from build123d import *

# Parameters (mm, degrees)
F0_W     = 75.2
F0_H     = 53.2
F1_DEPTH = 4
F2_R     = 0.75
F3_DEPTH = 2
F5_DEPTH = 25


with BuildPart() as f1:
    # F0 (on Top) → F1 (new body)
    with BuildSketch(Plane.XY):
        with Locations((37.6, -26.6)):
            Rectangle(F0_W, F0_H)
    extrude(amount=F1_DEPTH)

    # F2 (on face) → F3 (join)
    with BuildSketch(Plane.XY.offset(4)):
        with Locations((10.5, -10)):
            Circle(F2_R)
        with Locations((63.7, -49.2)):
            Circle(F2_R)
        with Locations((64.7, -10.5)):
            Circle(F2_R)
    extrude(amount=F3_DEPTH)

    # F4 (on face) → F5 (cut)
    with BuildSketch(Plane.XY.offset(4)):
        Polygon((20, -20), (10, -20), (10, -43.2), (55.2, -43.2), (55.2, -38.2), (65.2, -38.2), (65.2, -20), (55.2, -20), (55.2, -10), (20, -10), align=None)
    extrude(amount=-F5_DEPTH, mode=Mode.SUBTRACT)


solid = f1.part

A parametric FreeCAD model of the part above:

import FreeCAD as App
import Part
import Sketcher
from FreeCAD import Vector

doc = App.newDocument("Part")
body = doc.addObject("PartDesign::Body", "Body")

sketch1 = doc.addObject("Sketcher::SketchObject", "Sketch")
body.addObject(sketch1)
sketch1.AttachmentSupport = (doc.XY_Plane, [""])
sketch1.MapMode = "FlatFace"
sketch1.addGeometry([
    Part.LineSegment(Vector(0, 0, 0), Vector(0, -53.2, 0)),
    Part.LineSegment(Vector(0, -53.2, 0), Vector(75.2, -53.2, 0)),
    Part.LineSegment(Vector(75.2, -53.2, 0), Vector(75.2, 0, 0)),
    Part.LineSegment(Vector(75.2, 0, 0), Vector(0, 0, 0)),
], False)
sketch1.addConstraint([
    Sketcher.Constraint("Coincident", 0, 2, 1, 1),
    Sketcher.Constraint("Coincident", 1, 2, 2, 1),
    Sketcher.Constraint("Coincident", 2, 2, 3, 1),
    Sketcher.Constraint("Coincident", 3, 2, 0, 1),
    Sketcher.Constraint("Vertical", 0),
    Sketcher.Constraint("Horizontal", 1),
    Sketcher.Constraint("Vertical", 2),
    Sketcher.Constraint("Horizontal", 3),
    Sketcher.Constraint("Coincident", 3, 2, -1, 1),
    Sketcher.Constraint("DistanceX", 1, 1, 1, 2, 75.2),
    Sketcher.Constraint("DistanceY", 0, 2, 0, 1, 53.2),
])
pad1 = doc.addObject("PartDesign::Pad", "Pad")
body.addObject(pad1)
pad1.Profile = sketch1
pad1.Length = 4

sketch2 = doc.addObject("Sketcher::SketchObject", "Sketch001")
body.addObject(sketch2)
sketch2.AttachmentSupport = (doc.XY_Plane, [""])
sketch2.MapMode = "FlatFace"
sketch2.AttachmentOffset = App.Placement(Vector(0, 0, 4), App.Rotation())
sketch2.addGeometry([
    Part.Circle(Vector(10.5, -10, 0), Vector(0, 0, 1), 0.75),
    Part.Circle(Vector(63.7, -49.2, 0), Vector(0, 0, 1), 0.75),
    Part.Circle(Vector(64.7, -10.5, 0), Vector(0, 0, 1), 0.75),
], False)
sketch2.addConstraint([
    Sketcher.Constraint("Equal", 0, 1),
    Sketcher.Constraint("Equal", 1, 2),
    Sketcher.Constraint("Diameter", 0, 1.5),
    Sketcher.Constraint("DistanceY", 0, 3, -1, 1, 10.0),
    Sketcher.Constraint("DistanceX", 1, 3, 2, 3, 1.0),
    Sketcher.Constraint("DistanceX", -1, 1, 0, 3, 10.5),
    Sketcher.Constraint("DistanceX", -1, 1, 1, 3, 63.7),
    Sketcher.Constraint("DistanceY", 1, 3, -1, 1, 49.2),
    Sketcher.Constraint("DistanceY", 2, 3, -1, 1, 10.5),
])
pad2 = doc.addObject("PartDesign::Pad", "Pad001")
body.addObject(pad2)
pad2.Profile = sketch2
pad2.Length = 2

sketch3 = doc.addObject("Sketcher::SketchObject", "Sketch002")
body.addObject(sketch3)
sketch3.AttachmentSupport = (doc.XY_Plane, [""])
sketch3.MapMode = "FlatFace"
sketch3.AttachmentOffset = App.Placement(Vector(0, 0, 4), App.Rotation())
sketch3.addGeometry([
    Part.LineSegment(Vector(20, -20, 0), Vector(10, -20, 0)),
    Part.LineSegment(Vector(10, -20, 0), Vector(10, -43.2, 0)),
    Part.LineSegment(Vector(10, -43.2, 0), Vector(55.2, -43.2, 0)),
    Part.LineSegment(Vector(55.2, -43.2, 0), Vector(55.2, -38.2, 0)),
    Part.LineSegment(Vector(55.2, -38.2, 0), Vector(65.2, -38.2, 0)),
    Part.LineSegment(Vector(65.2, -38.2, 0), Vector(65.2, -20, 0)),
    Part.LineSegment(Vector(65.2, -20, 0), Vector(55.2, -20, 0)),
    Part.LineSegment(Vector(55.2, -20, 0), Vector(55.2, -10, 0)),
    Part.LineSegment(Vector(55.2, -10, 0), Vector(20, -10, 0)),
    Part.LineSegment(Vector(20, -10, 0), Vector(20, -20, 0)),
], False)
sketch3.addConstraint([
    Sketcher.Constraint("Coincident", 0, 2, 1, 1),
    Sketcher.Constraint("Coincident", 1, 2, 2, 1),
    Sketcher.Constraint("Coincident", 2, 2, 3, 1),
    Sketcher.Constraint("Coincident", 3, 2, 4, 1),
    Sketcher.Constraint("Coincident", 4, 2, 5, 1),
    Sketcher.Constraint("Coincident", 5, 2, 6, 1),
    Sketcher.Constraint("Coincident", 6, 2, 7, 1),
    Sketcher.Constraint("Coincident", 7, 2, 8, 1),
    Sketcher.Constraint("Coincident", 8, 2, 9, 1),
    Sketcher.Constraint("Coincident", 9, 2, 0, 1),
    Sketcher.Constraint("Horizontal", 0),
    Sketcher.Constraint("Vertical", 1),
    Sketcher.Constraint("Horizontal", 2),
    Sketcher.Constraint("Vertical", 3),
    Sketcher.Constraint("Horizontal", 4),
    Sketcher.Constraint("Vertical", 5),
    Sketcher.Constraint("Horizontal", 6),
    Sketcher.Constraint("Vertical", 7),
    Sketcher.Constraint("Horizontal", 8),
    Sketcher.Constraint("Vertical", 9),
    Sketcher.Constraint("Horizontal", 0, 2, 5, 2),
    Sketcher.Constraint("Vertical", 3, 2, 6, 2),
    Sketcher.Constraint("Equal", 0, 4),
    Sketcher.Constraint("Equal", 6, 7),
    Sketcher.Constraint("DistanceX", 0, 2, 0, 1, 10.0),
    Sketcher.Constraint("DistanceY", 3, 1, 3, 2, 5.0),
    Sketcher.Constraint("DistanceX", 2, 1, 2, 2, 45.2),
    Sketcher.Constraint("DistanceY", 1, 2, 1, 1, 23.2),
    Sketcher.Constraint("DistanceX", -1, 1, 0, 2, 10.0),
    Sketcher.Constraint("DistanceY", 0, 2, -1, 1, 20.0),
])
pocket1 = doc.addObject("PartDesign::Pocket", "Pocket")
body.addObject(pocket1)
pocket1.Profile = sketch3
pocket1.Length = 25

doc.recompute()
